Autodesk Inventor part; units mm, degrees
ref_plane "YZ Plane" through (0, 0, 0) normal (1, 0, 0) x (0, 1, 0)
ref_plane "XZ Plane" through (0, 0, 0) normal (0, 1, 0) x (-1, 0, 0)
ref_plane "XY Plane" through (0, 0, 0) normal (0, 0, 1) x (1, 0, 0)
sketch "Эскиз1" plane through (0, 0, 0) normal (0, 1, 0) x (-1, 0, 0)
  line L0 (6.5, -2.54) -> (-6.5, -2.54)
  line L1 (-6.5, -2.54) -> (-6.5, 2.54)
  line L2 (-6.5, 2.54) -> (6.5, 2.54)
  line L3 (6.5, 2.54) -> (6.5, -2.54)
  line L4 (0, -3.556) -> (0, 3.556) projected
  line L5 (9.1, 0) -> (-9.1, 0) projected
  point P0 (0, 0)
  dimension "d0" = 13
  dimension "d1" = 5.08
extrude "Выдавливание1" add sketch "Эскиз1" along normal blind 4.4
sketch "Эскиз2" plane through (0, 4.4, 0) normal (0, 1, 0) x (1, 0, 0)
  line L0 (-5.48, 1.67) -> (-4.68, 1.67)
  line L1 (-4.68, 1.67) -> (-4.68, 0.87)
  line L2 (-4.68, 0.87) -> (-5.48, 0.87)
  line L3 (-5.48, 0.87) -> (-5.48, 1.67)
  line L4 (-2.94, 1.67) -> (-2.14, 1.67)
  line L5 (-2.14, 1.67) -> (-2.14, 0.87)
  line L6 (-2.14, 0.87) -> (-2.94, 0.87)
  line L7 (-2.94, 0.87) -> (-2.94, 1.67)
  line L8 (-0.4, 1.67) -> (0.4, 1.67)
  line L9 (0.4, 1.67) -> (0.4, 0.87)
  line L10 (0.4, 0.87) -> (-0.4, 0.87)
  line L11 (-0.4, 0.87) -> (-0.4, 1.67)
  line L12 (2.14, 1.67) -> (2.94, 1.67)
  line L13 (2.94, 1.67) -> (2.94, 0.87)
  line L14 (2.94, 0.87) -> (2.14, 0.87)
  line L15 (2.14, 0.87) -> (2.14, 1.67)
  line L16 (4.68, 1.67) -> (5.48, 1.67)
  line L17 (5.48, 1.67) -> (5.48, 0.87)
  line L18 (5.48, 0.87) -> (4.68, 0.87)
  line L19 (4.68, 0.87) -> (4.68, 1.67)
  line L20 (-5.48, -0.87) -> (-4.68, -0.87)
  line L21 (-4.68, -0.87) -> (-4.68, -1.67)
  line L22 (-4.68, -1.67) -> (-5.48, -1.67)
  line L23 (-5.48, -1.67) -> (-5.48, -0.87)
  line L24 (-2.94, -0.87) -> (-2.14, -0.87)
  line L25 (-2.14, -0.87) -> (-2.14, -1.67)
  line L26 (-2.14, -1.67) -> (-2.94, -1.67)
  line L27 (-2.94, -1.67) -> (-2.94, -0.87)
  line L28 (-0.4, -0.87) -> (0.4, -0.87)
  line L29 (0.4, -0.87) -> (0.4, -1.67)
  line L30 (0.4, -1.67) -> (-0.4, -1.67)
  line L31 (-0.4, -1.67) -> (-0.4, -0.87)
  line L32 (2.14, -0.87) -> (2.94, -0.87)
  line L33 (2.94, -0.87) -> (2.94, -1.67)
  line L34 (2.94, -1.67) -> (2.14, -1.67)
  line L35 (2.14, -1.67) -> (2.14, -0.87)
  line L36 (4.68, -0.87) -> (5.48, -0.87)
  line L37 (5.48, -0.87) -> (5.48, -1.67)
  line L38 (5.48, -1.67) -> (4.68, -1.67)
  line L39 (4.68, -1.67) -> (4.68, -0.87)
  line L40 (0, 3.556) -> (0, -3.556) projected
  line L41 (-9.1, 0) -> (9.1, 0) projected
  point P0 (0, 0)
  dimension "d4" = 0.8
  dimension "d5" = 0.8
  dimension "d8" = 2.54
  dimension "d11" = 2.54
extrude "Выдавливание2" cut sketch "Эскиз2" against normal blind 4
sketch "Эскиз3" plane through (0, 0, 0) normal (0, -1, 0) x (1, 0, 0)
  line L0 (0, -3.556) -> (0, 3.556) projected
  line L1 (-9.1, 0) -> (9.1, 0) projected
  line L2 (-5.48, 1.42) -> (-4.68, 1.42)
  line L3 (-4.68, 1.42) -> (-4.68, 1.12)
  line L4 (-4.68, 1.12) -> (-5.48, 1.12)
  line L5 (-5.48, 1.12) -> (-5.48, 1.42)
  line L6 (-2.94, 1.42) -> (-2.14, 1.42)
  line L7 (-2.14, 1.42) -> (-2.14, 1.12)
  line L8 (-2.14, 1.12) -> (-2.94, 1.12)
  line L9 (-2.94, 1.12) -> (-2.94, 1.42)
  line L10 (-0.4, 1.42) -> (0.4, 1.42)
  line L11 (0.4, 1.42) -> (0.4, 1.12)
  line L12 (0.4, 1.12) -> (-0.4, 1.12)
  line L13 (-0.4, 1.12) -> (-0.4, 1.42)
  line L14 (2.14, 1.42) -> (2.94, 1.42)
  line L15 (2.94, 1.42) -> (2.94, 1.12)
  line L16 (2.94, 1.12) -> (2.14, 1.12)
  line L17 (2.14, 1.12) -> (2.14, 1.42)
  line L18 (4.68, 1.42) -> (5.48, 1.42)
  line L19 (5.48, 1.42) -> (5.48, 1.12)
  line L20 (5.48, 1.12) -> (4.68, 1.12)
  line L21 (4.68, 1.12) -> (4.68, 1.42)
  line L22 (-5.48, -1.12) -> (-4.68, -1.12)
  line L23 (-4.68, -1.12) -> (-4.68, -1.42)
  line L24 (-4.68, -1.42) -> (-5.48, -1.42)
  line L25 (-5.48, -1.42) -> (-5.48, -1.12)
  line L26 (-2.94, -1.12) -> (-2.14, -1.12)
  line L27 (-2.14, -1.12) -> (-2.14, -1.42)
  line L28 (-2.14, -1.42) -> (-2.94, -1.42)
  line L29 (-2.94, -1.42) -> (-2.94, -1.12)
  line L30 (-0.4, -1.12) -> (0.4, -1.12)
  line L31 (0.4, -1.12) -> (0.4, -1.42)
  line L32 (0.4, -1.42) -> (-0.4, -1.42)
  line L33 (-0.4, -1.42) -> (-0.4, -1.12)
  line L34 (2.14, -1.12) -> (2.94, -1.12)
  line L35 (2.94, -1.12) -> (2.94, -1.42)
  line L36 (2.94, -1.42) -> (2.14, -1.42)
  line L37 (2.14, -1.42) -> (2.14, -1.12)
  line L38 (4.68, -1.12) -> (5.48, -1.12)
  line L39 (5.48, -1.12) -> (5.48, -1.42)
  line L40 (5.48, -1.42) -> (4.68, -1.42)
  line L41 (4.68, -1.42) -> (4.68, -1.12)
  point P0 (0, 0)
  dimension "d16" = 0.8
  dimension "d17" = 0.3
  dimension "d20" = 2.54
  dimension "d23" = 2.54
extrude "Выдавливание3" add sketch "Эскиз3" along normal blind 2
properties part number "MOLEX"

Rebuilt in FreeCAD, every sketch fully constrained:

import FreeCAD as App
import Part
import Sketcher

doc = App.newDocument("Part")
params = doc.addObject("Spreadsheet::Sheet", "Params")
for row, (alias, value) in enumerate([
    ("sketch1_width", "13 mm"),
    ("sketch1_height", "5.08 mm"),
    ("pad1_length", "4.4 mm"),
    ("sketch2_width", "0.8 mm"),
    ("pocket1_length", "4 mm"),
    ("sketch3_width", "0.8 mm"),
    ("sketch3_height", "0.3 mm"),
    ("pad2_length", "2 mm"),
], start=1):
    params.set(f"A{row}", alias)
    params.set(f"B{row}", "=" + value)
    params.setAlias(f"B{row}", alias)

body = doc.addObject("PartDesign::Body", "Body")

# Sketch on XZ plane
sketch1 = body.newObject("Sketcher::SketchObject", "Sketch")
sketch1.AttachmentSupport = (doc.getObject("XZ_Plane"), [""])
sketch1.MapMode = "FlatFace"
sketch1.addGeometry(Part.LineSegment(App.Vector(-6, -3, 0), App.Vector(-6, 3, 0)), False)
sketch1.addGeometry(Part.LineSegment(App.Vector(-6, 3, 0), App.Vector(6, 3, 0)), False)
sketch1.addGeometry(Part.LineSegment(App.Vector(6, 3, 0), App.Vector(6, -3, 0)), False)
sketch1.addGeometry(Part.LineSegment(App.Vector(6, -3, 0), App.Vector(-6, -3, 0)), False)
sketch1.addConstraint(Sketcher.Constraint("Coincident", 0, 2, 1, 1))
sketch1.addConstraint(Sketcher.Constraint("Coincident", 1, 2, 2, 1))
sketch1.addConstraint(Sketcher.Constraint("Coincident", 2, 2, 3, 1))
sketch1.addConstraint(Sketcher.Constraint("Coincident", 3, 2, 0, 1))
sketch1.addConstraint(Sketcher.Constraint("Vertical", 0))
sketch1.addConstraint(Sketcher.Constraint("Horizontal", 1))
sketch1.addConstraint(Sketcher.Constraint("Vertical", 2))
sketch1.addConstraint(Sketcher.Constraint("Horizontal", 3))
sketch1.addConstraint(Sketcher.Constraint("Symmetric", 0, 2, 2, 2, -1, 1))
sketch1.addConstraint(Sketcher.Constraint("DistanceX", 1, 1, 1, 2, 13.0))
sketch1.addConstraint(Sketcher.Constraint("DistanceY", 0, 1, 0, 2, 5.08))
sketch1.setExpression("Constraints[9]", "Params.sketch1_width")
sketch1.setExpression("Constraints[10]", "Params.sketch1_height")
pad1 = body.newObject("PartDesign::Pad", "Pad")
pad1.Profile = sketch1
pad1.setExpression("Length", "Params.pad1_length")
pad1.Reversed = True

# Sketch on XZ plane
sketch2 = body.newObject("Sketcher::SketchObject", "Sketch001")
sketch2.AttachmentSupport = (doc.getObject("XZ_Plane"), [""])
sketch2.MapMode = "FlatFace"
sketch2.AttachmentOffset = App.Placement(App.Vector(0, 0, -4.4), App.Rotation())
sketch2.addGeometry(Part.LineSegment(App.Vector(-4.7, -1.7, 0), App.Vector(-5.5, -1.7, 0)), False)
sketch2.addGeometry(Part.LineSegment(App.Vector(-5.5, -1.7, 0), App.Vector(-5.5, -0.9, 0)), False)
sketch2.addGeometry(Part.LineSegment(App.Vector(-5.5, -0.9, 0), App.Vector(-4.7, -0.9, 0)), False)
sketch2.addGeometry(Part.LineSegment(App.Vector(-4.7, -0.9, 0), App.Vector(-4.7, -1.7, 0)), False)
sketch2.addGeometry(Part.LineSegment(App.Vector(-2.1, -1.7, 0), App.Vector(-2.9, -1.7, 0)), False)
sketch2.addGeometry(Part.LineSegment(App.Vector(-2.9, -1.7, 0), App.Vector(-2.9, -0.9, 0)), False)
sketch2.addGeometry(Part.LineSegment(App.Vector(-2.9, -0.9, 0), App.Vector(-2.1, -0.9, 0)), False)
sketch2.addGeometry(Part.LineSegment(App.Vector(-2.1, -0.9, 0), App.Vector(-2.1, -1.7, 0)), False)
sketch2.addGeometry(Part.LineSegment(App.Vector(0.4, 0.9, 0), App.Vector(-0.4, 0.9, 0)), False)
sketch2.addGeometry(Part.LineSegment(App.Vector(-0.4, 0.9, 0), App.Vector(-0.4, 1.7, 0)), False)
sketch2.addGeometry(Part.LineSegment(App.Vector(-0.4, 1.7, 0), App.Vector(0.4, 1.7, 0)), False)
sketch2.addGeometry(Part.LineSegment(App.Vector(0.4, 1.7, 0), App.Vector(0.4, 0.9, 0)), False)
sketch2.addGeometry(Part.LineSegment(App.Vector(-0.4, -1.7, 0), App.Vector(-0.4, -0.9, 0)), False)
sketch2.addGeometry(Part.LineSegment(App.Vector(-0.4, -0.9, 0), App.Vector(0.4, -0.9, 0)), False)
sketch2.addGeometry(Part.LineSegment(App.Vector(0.4, -0.9, 0), App.Vector(0.4, -1.7, 0)), False)
sketch2.addGeometry(Part.LineSegment(App.Vector(0.4, -1.7, 0), App.Vector(-0.4, -1.7, 0)), False)
sketch2.addGeometry(Part.LineSegment(App.Vector(2.9, -1.7, 0), App.Vector(2.1, -1.7, 0)), False)
sketch2.addGeometry(Part.LineSegment(App.Vector(2.1, -1.7, 0), App.Vector(2.1, -0.9, 0)), False)
sketch2.addGeometry(Part.LineSegment(App.Vector(2.1, -0.9, 0), App.Vector(2.9, -0.9, 0)), False)
sketch2.addGeometry(Part.LineSegment(App.Vector(2.9, -0.9, 0), App.Vector(2.9, -1.7, 0)), False)
sketch2.addGeometry(Part.LineSegment(App.Vector(5.5, -1.7, 0), App.Vector(4.7, -1.7, 0)), False)
sketch2.addGeometry(Part.LineSegment(App.Vector(4.7, -1.7, 0), App.Vector(4.7, -0.9, 0)), False)
sketch2.addGeometry(Part.LineSegment(App.Vector(4.7, -0.9, 0), App.Vector(5.5, -0.9, 0)), False)
sketch2.addGeometry(Part.LineSegment(App.Vector(5.5, -0.9, 0), App.Vector(5.5, -1.7, 0)), False)
sketch2.addGeometry(Part.LineSegment(App.Vector(-4.7, 0.9, 0), App.Vector(-5.5, 0.9, 0)), False)
sketch2.addGeometry(Part.LineSegment(App.Vector(-5.5, 0.9, 0), App.Vector(-5.5, 1.7, 0)), False)
sketch2.addGeometry(Part.LineSegment(App.Vector(-5.5, 1.7, 0), App.Vector(-4.7, 1.7, 0)), False)
sketch2.addGeometry(Part.LineSegment(App.Vector(-4.7, 1.7, 0), App.Vector(-4.7, 0.9, 0)), False)
sketch2.addGeometry(Part.LineSegment(App.Vector(-2.1, 0.9, 0), App.Vector(-2.9, 0.9, 0)), False)
sketch2.addGeometry(Part.LineSegment(App.Vector(-2.9, 0.9, 0), App.Vector(-2.9, 1.7, 0)), False)
sketch2.addGeometry(Part.LineSegment(App.Vector(-2.9, 1.7, 0), App.Vector(-2.1, 1.7, 0)), False)
sketch2.addGeometry(Part.LineSegment(App.Vector(-2.1, 1.7, 0), App.Vector(-2.1, 0.9, 0)), False)
sketch2.addGeometry(Part.LineSegment(App.Vector(2.9, 0.9, 0), App.Vector(2.1, 0.9, 0)), False)
sketch2.addGeometry(Part.LineSegment(App.Vector(2.1, 0.9, 0), App.Vector(2.1, 1.7, 0)), False)
sketch2.addGeometry(Part.LineSegment(App.Vector(2.1, 1.7, 0), App.Vector(2.9, 1.7, 0)), False)
sketch2.addGeometry(Part.LineSegment(App.Vector(2.9, 1.7, 0), App.Vector(2.9, 0.9, 0)), False)
sketch2.addGeometry(Part.LineSegment(App.Vector(5.5, 0.9, 0), App.Vector(4.7, 0.9, 0)), False)
sketch2.addGeometry(Part.LineSegment(App.Vector(4.7, 0.9, 0), App.Vector(4.7, 1.7, 0)), False)
sketch2.addGeometry(Part.LineSegment(App.Vector(4.7, 1.7, 0), App.Vector(5.5, 1.7, 0)), False)
sketch2.addGeometry(Part.LineSegment(App.Vector(5.5, 1.7, 0), App.Vector(5.5, 0.9, 0)), False)
sketch2.addConstraint(Sketcher.Constraint("Coincident", 0, 2, 1, 1))
sketch2.addConstraint(Sketcher.Constraint("Coincident", 1, 2, 2, 1))
sketch2.addConstraint(Sketcher.Constraint("Coincident", 2, 2, 3, 1))
sketch2.addConstraint(Sketcher.Constraint("Coincident", 3, 2, 0, 1))
sketch2.addConstraint(Sketcher.Constraint("Coincident", 4, 2, 5, 1))
sketch2.addConstraint(Sketcher.Constraint("Coincident", 5, 2, 6, 1))
sketch2.addConstraint(Sketcher.Constraint("Coincident", 6, 2, 7, 1))
sketch2.addConstraint(Sketcher.Constraint("Coincident", 7, 2, 4, 1))
sketch2.addConstraint(Sketcher.Constraint("Coincident", 8, 2, 9, 1))
sketch2.addConstraint(Sketcher.Constraint("Coincident", 9, 2, 10, 1))
sketch2.addConstraint(Sketcher.Constraint("Coincident", 10, 2, 11, 1))
sketch2.addConstraint(Sketcher.Constraint("Coincident", 11, 2, 8, 1))
sketch2.addConstraint(Sketcher.Constraint("Coincident", 12, 2, 13, 1))
sketch2.addConstraint(Sketcher.Constraint("Coincident", 13, 2, 14, 1))
sketch2.addConstraint(Sketcher.Constraint("Coincident", 14, 2, 15, 1))
sketch2.addConstraint(Sketcher.Constraint("Coincident", 15, 2, 12, 1))
sketch2.addConstraint(Sketcher.Constraint("Coincident", 16, 2, 17, 1))
sketch2.addConstraint(Sketcher.Constraint("Coincident", 17, 2, 18, 1))
sketch2.addConstraint(Sketcher.Constraint("Coincident", 18, 2, 19, 1))
sketch2.addConstraint(Sketcher.Constraint("Coincident", 19, 2, 16, 1))
sketch2.addConstraint(Sketcher.Constraint("Coincident", 20, 2, 21, 1))
sketch2.addConstraint(Sketcher.Constraint("Coincident", 21, 2, 22, 1))
sketch2.addConstraint(Sketcher.Constraint("Coincident", 22, 2, 23, 1))
sketch2.addConstraint(Sketcher.Constraint("Coincident", 23, 2, 20, 1))
sketch2.addConstraint(Sketcher.Constraint("Coincident", 24, 2, 25, 1))
sketch2.addConstraint(Sketcher.Constraint("Coincident", 25, 2, 26, 1))
sketch2.addConstraint(Sketcher.Constraint("Coincident", 26, 2, 27, 1))
sketch2.addConstraint(Sketcher.Constraint("Coincident", 27, 2, 24, 1))
sketch2.addConstraint(Sketcher.Constraint("Coincident", 28, 2, 29, 1))
sketch2.addConstraint(Sketcher.Constraint("Coincident", 29, 2, 30, 1))
sketch2.addConstraint(Sketcher.Constraint("Coincident", 30, 2, 31, 1))
sketch2.addConstraint(Sketcher.Constraint("Coincident", 31, 2, 28, 1))
sketch2.addConstraint(Sketcher.Constraint("Coincident", 32, 2, 33, 1))
sketch2.addConstraint(Sketcher.Constraint("Coincident", 33, 2, 34, 1))
sketch2.addConstraint(Sketcher.Constraint("Coincident", 34, 2, 35, 1))
sketch2.addConstraint(Sketcher.Constraint("Coincident", 35, 2, 32, 1))
sketch2.addConstraint(Sketcher.Constraint("Coincident", 36, 2, 37, 1))
sketch2.addConstraint(Sketcher.Constraint("Coincident", 37, 2, 38, 1))
sketch2.addConstraint(Sketcher.Constraint("Coincident", 38, 2, 39, 1))
sketch2.addConstraint(Sketcher.Constraint("Coincident", 39, 2, 36, 1))
sketch2.addConstraint(Sketcher.Constraint("Horizontal", 0))
sketch2.addConstraint(Sketcher.Constraint("Vertical", 1))
sketch2.addConstraint(Sketcher.Constraint("Horizontal", 2))
sketch2.addConstraint(Sketcher.Constraint("Vertical", 3))
sketch2.addConstraint(Sketcher.Constraint("Horizontal", 4))
sketch2.addConstraint(Sketcher.Constraint("Vertical", 5))
sketch2.addConstraint(Sketcher.Constraint("Horizontal", 6))
sketch2.addConstraint(Sketcher.Constraint("Vertical", 7))
sketch2.addConstraint(Sketcher.Constraint("Horizontal", 8))
sketch2.addConstraint(Sketcher.Constraint("Vertical", 9))
sketch2.addConstraint(Sketcher.Constraint("Horizontal", 10))
sketch2.addConstraint(Sketcher.Constraint("Vertical", 11))
sketch2.addConstraint(Sketcher.Constraint("Vertical", 12))
sketch2.addConstraint(Sketcher.Constraint("Horizontal", 13))
sketch2.addConstraint(Sketcher.Constraint("Vertical", 14))
sketch2.addConstraint(Sketcher.Constraint("Horizontal", 15))
sketch2.addConstraint(Sketcher.Constraint("Horizontal", 16))
sketch2.addConstraint(Sketcher.Constraint("Vertical", 17))
sketch2.addConstraint(Sketcher.Constraint("Horizontal", 18))
sketch2.addConstraint(Sketcher.Constraint("Vertical", 19))
sketch2.addConstraint(Sketcher.Constraint("Horizontal", 20))
sketch2.addConstraint(Sketcher.Constraint("Vertical", 21))
sketch2.addConstraint(Sketcher.Constraint("Horizontal", 22))
sketch2.addConstraint(Sketcher.Constraint("Vertical", 23))
sketch2.addConstraint(Sketcher.Constraint("Horizontal", 24))
sketch2.addConstraint(Sketcher.Constraint("Vertical", 25))
sketch2.addConstraint(Sketcher.Constraint("Horizontal", 26))
sketch2.addConstraint(Sketcher.Constraint("Vertical", 27))
sketch2.addConstraint(Sketcher.Constraint("Horizontal", 28))
sketch2.addConstraint(Sketcher.Constraint("Vertical", 29))
sketch2.addConstraint(Sketcher.Constraint("Horizontal", 30))
sketch2.addConstraint(Sketcher.Constraint("Vertical", 31))
sketch2.addConstraint(Sketcher.Constraint("Horizontal", 32))
sketch2.addConstraint(Sketcher.Constraint("Vertical", 33))
sketch2.addConstraint(Sketcher.Constraint("Horizontal", 34))
sketch2.addConstraint(Sketcher.Constraint("Vertical", 35))
sketch2.addConstraint(Sketcher.Constraint("Horizontal", 36))
sketch2.addConstraint(Sketcher.Constraint("Vertical", 37))
sketch2.addConstraint(Sketcher.Constraint("Horizontal", 38))
sketch2.addConstraint(Sketcher.Constraint("Vertical", 39))
sketch2.addConstraint(Sketcher.Constraint("Symmetric", 11, 2, 12, 2, -1, 1))
sketch2.addConstraint(Sketcher.Constraint("Symmetric", 9, 2, 14, 2, -1, 1))
sketch2.addConstraint(Sketcher.Constraint("Symmetric", 22, 2, 24, 2, -1, 1))
sketch2.addConstraint(Sketcher.Constraint("Symmetric", 20, 2, 26, 2, -1, 1))
sketch2.addConstraint(Sketcher.Constraint("Symmetric", 18, 2, 28, 2, -1, 1))
sketch2.addConstraint(Sketcher.Constraint("Symmetric", 16, 2, 30, 2, -1, 1))
sketch2.addConstraint(Sketcher.Constraint("Symmetric", 6, 2, 32, 2, -1, 1))
sketch2.addConstraint(Sketcher.Constraint("Symmetric", 4, 2, 34, 2, -1, 1))
sketch2.addConstraint(Sketcher.Constraint("Symmetric", 2, 2, 36, 2, -1, 1))
sketch2.addConstraint(Sketcher.Constraint("Symmetric", 0, 2, 38, 2, -1, 1))
sketch2.addConstraint(Sketcher.Constraint("Symmetric", 7, 2, 16, 2, -2))
sketch2.addConstraint(Sketcher.Constraint("Symmetric", 5, 2, 18, 2, -2))
sketch2.addConstraint(Sketcher.Constraint("Symmetric", 3, 2, 20, 2, -2))
sketch2.addConstraint(Sketcher.Constraint("Symmetric", 1, 2, 22, 2, -2))
sketch2.addConstraint(Sketcher.Constraint("Horizontal", 3, 2, 4, 2))
sketch2.addConstraint(Sketcher.Constraint("Horizontal", 2, 2, 5, 2))
sketch2.addConstraint(Sketcher.Constraint("Horizontal", 6, 2, 12, 2))
sketch2.addConstraint(Sketcher.Constraint("Horizontal", 7, 2, 14, 2))
sketch2.addConstraint(Sketcher.Constraint("Vertical", 9, 2, 12, 2))
sketch2.addConstraint(Sketcher.Constraint("Equal", 2, 4))
sketch2.addConstraint(Sketcher.Constraint("Equal", 6, 8))
sketch2.addConstraint(Sketcher.Constraint("Equal", 38, 1))
sketch2.addConstraint(Sketcher.Constraint("DistanceX", 0, 2, 0, 1, 0.8))
sketch2.addConstraint(Sketcher.Constraint("DistanceX", 0, 2, 4, 2, 2.54))
sketch2.addConstraint(Sketcher.Constraint("DistanceX", 5, 2, 8, 2, 2.54))
sketch2.addConstraint(Sketcher.Constraint("DistanceY", 7, 2, 8, 2, 2.54))
sketch2.setExpression("Constraints[102]", "Params.sketch2_width")
pocket1 = body.newObject("PartDesign::Pocket", "Pocket")
pocket1.Profile = sketch2
pocket1.setExpression("Length", "Params.pocket1_length")
pocket1.Reversed = True

# Sketch on XZ plane
sketch3 = body.newObject("Sketcher::SketchObject", "Sketch002")
sketch3.AttachmentSupport = (doc.getObject("XZ_Plane"), [""])
sketch3.MapMode = "FlatFace"
sketch3.addGeometry(Part.LineSegment(App.Vector(-0.4, -1.42, 0), App.Vector(0.4, -1.42, 0)), False)
sketch3.addGeometry(Part.LineSegment(App.Vector(0.4, -1.42, 0), App.Vector(0.4, -1.12, 0)), False)
sketch3.addGeometry(Part.LineSegment(App.Vector(0.4, -1.12, 0), App.Vector(-0.4, -1.12, 0)), False)
sketch3.addGeometry(Part.LineSegment(App.Vector(-0.4, -1.12, 0), App.Vector(-0.4, -1.42, 0)), False)
sketch3.addGeometry(Part.LineSegment(App.Vector(-0.4, 1.12, 0), App.Vector(0.4, 1.12, 0)), False)
sketch3.addGeometry(Part.LineSegment(App.Vector(0.4, 1.12, 0), App.Vector(0.4, 1.42, 0)), False)
sketch3.addGeometry(Part.LineSegment(App.Vector(0.4, 1.42, 0), App.Vector(-0.4, 1.42, 0)), False)
sketch3.addGeometry(Part.LineSegment(App.Vector(-0.4, 1.42, 0), App.Vector(-0.4, 1.12, 0)), False)
sketch3.addGeometry(Part.LineSegment(App.Vector(-4.68, 1.42, 0), App.Vector(-5.48, 1.42, 0)), False)
sketch3.addGeometry(Part.LineSegment(App.Vector(-5.48, 1.42, 0), App.Vector(-5.48, 1.12, 0)), False)
sketch3.addGeometry(Part.LineSegment(App.Vector(-5.48, 1.12, 0), App.Vector(-4.68, 1.12, 0)), False)
sketch3.addGeometry(Part.LineSegment(App.Vector(-4.68, 1.12, 0), App.Vector(-4.68, 1.42, 0)), False)
sketch3.addGeometry(Part.LineSegment(App.Vector(-2.14, 1.42, 0), App.Vector(-2.94, 1.42, 0)), False)
sketch3.addGeometry(Part.LineSegment(App.Vector(-2.94, 1.42, 0), App.Vector(-2.94, 1.12, 0)), False)
sketch3.addGeometry(Part.LineSegment(App.Vector(-2.94, 1.12, 0), App.Vector(-2.14, 1.12, 0)), False)
sketch3.addGeometry(Part.LineSegment(App.Vector(-2.14, 1.12, 0), App.Vector(-2.14, 1.42, 0)), False)
sketch3.addGeometry(Part.LineSegment(App.Vector(2.94, 1.42, 0), App.Vector(2.14, 1.42, 0)), False)
sketch3.addGeometry(Part.LineSegment(App.Vector(2.14, 1.42, 0), App.Vector(2.14, 1.12, 0)), False)
sketch3.addGeometry(Part.LineSegment(App.Vector(2.14, 1.12, 0), App.Vector(2.94, 1.12, 0)), False)
sketch3.addGeometry(Part.LineSegment(App.Vector(2.94, 1.12, 0), App.Vector(2.94, 1.42, 0)), False)
sketch3.addGeometry(Part.LineSegment(App.Vector(5.48, 1.42, 0), App.Vector(4.68, 1.42, 0)), False)
sketch3.addGeometry(Part.LineSegment(App.Vector(4.68, 1.42, 0), App.Vector(4.68, 1.12, 0)), False)
sketch3.addGeometry(Part.LineSegment(App.Vector(4.68, 1.12, 0), App.Vector(5.48, 1.12, 0)), False)
sketch3.addGeometry(Part.LineSegment(App.Vector(5.48, 1.12, 0), App.Vector(5.48, 1.42, 0)), False)
sketch3.addGeometry(Part.LineSegment(App.Vector(-4.68, -1.12, 0), App.Vector(-5.48, -1.12, 0)), False)
sketch3.addGeometry(Part.LineSegment(App.Vector(-5.48, -1.12, 0), App.Vector(-5.48, -1.42, 0)), False)
sketch3.addGeometry(Part.LineSegment(App.Vector(-5.48, -1.42, 0), App.Vector(-4.68, -1.42, 0)), False)
sketch3.addGeometry(Part.LineSegment(App.Vector(-4.68, -1.42, 0), App.Vector(-4.68, -1.12, 0)), False)
sketch3.addGeometry(Part.LineSegment(App.Vector(-2.14, -1.12, 0), App.Vector(-2.94, -1.12, 0)), False)
sketch3.addGeometry(Part.LineSegment(App.Vector(-2.94, -1.12, 0), App.Vector(-2.94, -1.42, 0)), False)
sketch3.addGeometry(Part.LineSegment(App.Vector(-2.94, -1.42, 0), App.Vector(-2.14, -1.42, 0)), False)
sketch3.addGeometry(Part.LineSegment(App.Vector(-2.14, -1.42, 0), App.Vector(-2.14, -1.12, 0)), False)
sketch3.addGeometry(Part.LineSegment(App.Vector(2.94, -1.12, 0), App.Vector(2.14, -1.12, 0)), False)
sketch3.addGeometry(Part.LineSegment(App.Vector(2.14, -1.12, 0), App.Vector(2.14, -1.42, 0)), False)
sketch3.addGeometry(Part.LineSegment(App.Vector(2.14, -1.42, 0), App.Vector(2.94, -1.42, 0)), False)
sketch3.addGeometry(Part.LineSegment(App.Vector(2.94, -1.42, 0), App.Vector(2.94, -1.12, 0)), False)
sketch3.addGeometry(Part.LineSegment(App.Vector(5.48, -1.12, 0), App.Vector(4.68, -1.12, 0)), False)
sketch3.addGeometry(Part.LineSegment(App.Vector(4.68, -1.12, 0), App.Vector(4.68, -1.42, 0)), False)
sketch3.addGeometry(Part.LineSegment(App.Vector(4.68, -1.42, 0), App.Vector(5.48, -1.42, 0)), False)
sketch3.addGeometry(Part.LineSegment(App.Vector(5.48, -1.42, 0), App.Vector(5.48, -1.12, 0)), False)
sketch3.addConstraint(Sketcher.Constraint("Coincident", 0, 2, 1, 1))
sketch3.addConstraint(Sketcher.Constraint("Coincident", 1, 2, 2, 1))
sketch3.addConstraint(Sketcher.Constraint("Coincident", 2, 2, 3, 1))
sketch3.addConstraint(Sketcher.Constraint("Coincident", 3, 2, 0, 1))
sketch3.addConstraint(Sketcher.Constraint("Coincident", 4, 2, 5, 1))
sketch3.addConstraint(Sketcher.Constraint("Coincident", 5, 2, 6, 1))
sketch3.addConstraint(Sketcher.Constraint("Coincident", 6, 2, 7, 1))
sketch3.addConstraint(Sketcher.Constraint("Coincident", 7, 2, 4, 1))
sketch3.addConstraint(Sketcher.Constraint("Coincident", 8, 2, 9, 1))
sketch3.addConstraint(Sketcher.Constraint("Coincident", 9, 2, 10, 1))
sketch3.addConstraint(Sketcher.Constraint("Coincident", 10, 2, 11, 1))
sketch3.addConstraint(Sketcher.Constraint("Coincident", 11, 2, 8, 1))
sketch3.addConstraint(Sketcher.Constraint("Coincident", 12, 2, 13, 1))
sketch3.addConstraint(Sketcher.Constraint("Coincident", 13, 2, 14, 1))
sketch3.addConstraint(Sketcher.Constraint("Coincident", 14, 2, 15, 1))
sketch3.addConstraint(Sketcher.Constraint("Coincident", 15, 2, 12, 1))
sketch3.addConstraint(Sketcher.Constraint("Coincident", 16, 2, 17, 1))
sketch3.addConstraint(Sketcher.Constraint("Coincident", 17, 2, 18, 1))
sketch3.addConstraint(Sketcher.Constraint("Coincident", 18, 2, 19, 1))
sketch3.addConstraint(Sketcher.Constraint("Coincident", 19, 2, 16, 1))
sketch3.addConstraint(Sketcher.Constraint("Coincident", 20, 2, 21, 1))
sketch3.addConstraint(Sketcher.Constraint("Coincident", 21, 2, 22, 1))
sketch3.addConstraint(Sketcher.Constraint("Coincident", 22, 2, 23, 1))
sketch3.addConstraint(Sketcher.Constraint("Coincident", 23, 2, 20, 1))
sketch3.addConstraint(Sketcher.Constraint("Coincident", 24, 2, 25, 1))
sketch3.addConstraint(Sketcher.Constraint("Coincident", 25, 2, 26, 1))
sketch3.addConstraint(Sketcher.Constraint("Coincident", 26, 2, 27, 1))
sketch3.addConstraint(Sketcher.Constraint("Coincident", 27, 2, 24, 1))
sketch3.addConstraint(Sketcher.Constraint("Coincident", 28, 2, 29, 1))
sketch3.addConstraint(Sketcher.Constraint("Coincident", 29, 2, 30, 1))
sketch3.addConstraint(Sketcher.Constraint("Coincident", 30, 2, 31, 1))
sketch3.addConstraint(Sketcher.Constraint("Coincident", 31, 2, 28, 1))
sketch3.addConstraint(Sketcher.Constraint("Coincident", 32, 2, 33, 1))
sketch3.addConstraint(Sketcher.Constraint("Coincident", 33, 2, 34, 1))
sketch3.addConstraint(Sketcher.Constraint("Coincident", 34, 2, 35, 1))
sketch3.addConstraint(Sketcher.Constraint("Coincident", 35, 2, 32, 1))
sketch3.addConstraint(Sketcher.Constraint("Coincident", 36, 2, 37, 1))
sketch3.addConstraint(Sketcher.Constraint("Coincident", 37, 2, 38, 1))
sketch3.addConstraint(Sketcher.Constraint("Coincident", 38, 2, 39, 1))
sketch3.addConstraint(Sketcher.Constraint("Coincident", 39, 2, 36, 1))
sketch3.addConstraint(Sketcher.Constraint("Horizontal", 0))
sketch3.addConstraint(Sketcher.Constraint("Vertical", 1))
sketch3.addConstraint(Sketcher.Constraint("Horizontal", 2))
sketch3.addConstraint(Sketcher.Constraint("Vertical", 3))
sketch3.addConstraint(Sketcher.Constraint("Horizontal", 4))
sketch3.addConstraint(Sketcher.Constraint("Vertical", 5))
sketch3.addConstraint(Sketcher.Constraint("Horizontal", 6))
sketch3.addConstraint(Sketcher.Constraint("Vertical", 7))
sketch3.addConstraint(Sketcher.Constraint("Horizontal", 8))
sketch3.addConstraint(Sketcher.Constraint("Vertical", 9))
sketch3.addConstraint(Sketcher.Constraint("Horizontal", 10))
sketch3.addConstraint(Sketcher.Constraint("Vertical", 11))
sketch3.addConstraint(Sketcher.Constraint("Horizontal", 12))
sketch3.addConstraint(Sketcher.Constraint("Vertical", 13))
sketch3.addConstraint(Sketcher.Constraint("Horizontal", 14))
sketch3.addConstraint(Sketcher.Constraint("Vertical", 15))
sketch3.addConstraint(Sketcher.Constraint("Horizontal", 16))
sketch3.addConstraint(Sketcher.Constraint("Vertical", 17))
sketch3.addConstraint(Sketcher.Constraint("Horizontal", 18))
sketch3.addConstraint(Sketcher.Constraint("Vertical", 19))
sketch3.addConstraint(Sketcher.Constraint("Horizontal", 20))
sketch3.addConstraint(Sketcher.Constraint("Vertical", 21))
sketch3.addConstraint(Sketcher.Constraint("Horizontal", 22))
sketch3.addConstraint(Sketcher.Constraint("Vertical", 23))
sketch3.addConstraint(Sketcher.Constraint("Horizontal", 24))
sketch3.addConstraint(Sketcher.Constraint("Vertical", 25))
sketch3.addConstraint(Sketcher.Constraint("Horizontal", 26))
sketch3.addConstraint(Sketcher.Constraint("Vertical", 27))
sketch3.addConstraint(Sketcher.Constraint("Horizontal", 28))
sketch3.addConstraint(Sketcher.Constraint("Vertical", 29))
sketch3.addConstraint(Sketcher.Constraint("Horizontal", 30))
sketch3.addConstraint(Sketcher.Constraint("Vertical", 31))
sketch3.addConstraint(Sketcher.Constraint("Horizontal", 32))
sketch3.addConstraint(Sketcher.Constraint("Vertical", 33))
sketch3.addConstraint(Sketcher.Constraint("Horizontal", 34))
sketch3.addConstraint(Sketcher.Constraint("Vertical", 35))
sketch3.addConstraint(Sketcher.Constraint("Horizontal", 36))
sketch3.addConstraint(Sketcher.Constraint("Vertical", 37))
sketch3.addConstraint(Sketcher.Constraint("Horizontal", 38))
sketch3.addConstraint(Sketcher.Constraint("Vertical", 39))
sketch3.addConstraint(Sketcher.Constraint("Symmetric", 2, 2, 4, 2, -1, 1))
sketch3.addConstraint(Sketcher.Constraint("Symmetric", 0, 2, 6, 2, -1, 1))
sketch3.addConstraint(Sketcher.Constraint("Symmetric", 22, 2, 24, 2, -1, 1))
sketch3.addConstraint(Sketcher.Constraint("Symmetric", 20, 2, 26, 2, -1, 1))
sketch3.addConstraint(Sketcher.Constraint("Symmetric", 18, 2, 28, 2, -1, 1))
sketch3.addConstraint(Sketcher.Constraint("Symmetric", 16, 2, 30, 2, -1, 1))
sketch3.addConstraint(Sketcher.Constraint("Symmetric", 14, 2, 32, 2, -1, 1))
sketch3.addConstraint(Sketcher.Constraint("Symmetric", 12, 2, 34, 2, -1, 1))
sketch3.addConstraint(Sketcher.Constraint("Symmetric", 10, 2, 36, 2, -1, 1))
sketch3.addConstraint(Sketcher.Constraint("Symmetric", 8, 2, 38, 2, -1, 1))
sketch3.addConstraint(Sketcher.Constraint("Symmetric", 15, 2, 16, 2, -2))
sketch3.addConstraint(Sketcher.Constraint("Symmetric", 13, 2, 18, 2, -2))
sketch3.addConstraint(Sketcher.Constraint("Symmetric", 11, 2, 20, 2, -2))
sketch3.addConstraint(Sketcher.Constraint("Symmetric", 9, 2, 22, 2, -2))
sketch3.addConstraint(Sketcher.Constraint("Horizontal", 6, 2, 8, 2))
sketch3.addConstraint(Sketcher.Constraint("Horizontal", 7, 2, 9, 2))
sketch3.addConstraint(Sketcher.Constraint("Horizontal", 11, 2, 12, 2))
sketch3.addConstraint(Sketcher.Constraint("Horizontal", 10, 2, 13, 2))
sketch3.addConstraint(Sketcher.Constraint("Vertical", 1, 2, 4, 2))
sketch3.addConstraint(Sketcher.Constraint("Equal", 6, 8))
sketch3.addConstraint(Sketcher.Constraint("Equal", 10, 12))
sketch3.addConstraint(Sketcher.Constraint("DistanceX", 0, 1, 0, 2, 0.8))
sketch3.addConstraint(Sketcher.Constraint("DistanceY", 1, 1, 1, 2, 0.3))
sketch3.addConstraint(Sketcher.Constraint("DistanceY", 0, 2, 4, 2, 2.54))
sketch3.addConstraint(Sketcher.Constraint("DistanceX", 12, 2, 6, 2, 2.54))
sketch3.addConstraint(Sketcher.Constraint("DistanceX", 8, 2, 12, 2, 2.54))
sketch3.setExpression("Constraints[101]", "Params.sketch3_width")
sketch3.setExpression("Constraints[102]", "Params.sketch3_height")
pad2 = body.newObject("PartDesign::Pad", "Pad001")
pad2.Profile = sketch3
pad2.setExpression("Length", "Params.pad2_length")

doc.recompute()
